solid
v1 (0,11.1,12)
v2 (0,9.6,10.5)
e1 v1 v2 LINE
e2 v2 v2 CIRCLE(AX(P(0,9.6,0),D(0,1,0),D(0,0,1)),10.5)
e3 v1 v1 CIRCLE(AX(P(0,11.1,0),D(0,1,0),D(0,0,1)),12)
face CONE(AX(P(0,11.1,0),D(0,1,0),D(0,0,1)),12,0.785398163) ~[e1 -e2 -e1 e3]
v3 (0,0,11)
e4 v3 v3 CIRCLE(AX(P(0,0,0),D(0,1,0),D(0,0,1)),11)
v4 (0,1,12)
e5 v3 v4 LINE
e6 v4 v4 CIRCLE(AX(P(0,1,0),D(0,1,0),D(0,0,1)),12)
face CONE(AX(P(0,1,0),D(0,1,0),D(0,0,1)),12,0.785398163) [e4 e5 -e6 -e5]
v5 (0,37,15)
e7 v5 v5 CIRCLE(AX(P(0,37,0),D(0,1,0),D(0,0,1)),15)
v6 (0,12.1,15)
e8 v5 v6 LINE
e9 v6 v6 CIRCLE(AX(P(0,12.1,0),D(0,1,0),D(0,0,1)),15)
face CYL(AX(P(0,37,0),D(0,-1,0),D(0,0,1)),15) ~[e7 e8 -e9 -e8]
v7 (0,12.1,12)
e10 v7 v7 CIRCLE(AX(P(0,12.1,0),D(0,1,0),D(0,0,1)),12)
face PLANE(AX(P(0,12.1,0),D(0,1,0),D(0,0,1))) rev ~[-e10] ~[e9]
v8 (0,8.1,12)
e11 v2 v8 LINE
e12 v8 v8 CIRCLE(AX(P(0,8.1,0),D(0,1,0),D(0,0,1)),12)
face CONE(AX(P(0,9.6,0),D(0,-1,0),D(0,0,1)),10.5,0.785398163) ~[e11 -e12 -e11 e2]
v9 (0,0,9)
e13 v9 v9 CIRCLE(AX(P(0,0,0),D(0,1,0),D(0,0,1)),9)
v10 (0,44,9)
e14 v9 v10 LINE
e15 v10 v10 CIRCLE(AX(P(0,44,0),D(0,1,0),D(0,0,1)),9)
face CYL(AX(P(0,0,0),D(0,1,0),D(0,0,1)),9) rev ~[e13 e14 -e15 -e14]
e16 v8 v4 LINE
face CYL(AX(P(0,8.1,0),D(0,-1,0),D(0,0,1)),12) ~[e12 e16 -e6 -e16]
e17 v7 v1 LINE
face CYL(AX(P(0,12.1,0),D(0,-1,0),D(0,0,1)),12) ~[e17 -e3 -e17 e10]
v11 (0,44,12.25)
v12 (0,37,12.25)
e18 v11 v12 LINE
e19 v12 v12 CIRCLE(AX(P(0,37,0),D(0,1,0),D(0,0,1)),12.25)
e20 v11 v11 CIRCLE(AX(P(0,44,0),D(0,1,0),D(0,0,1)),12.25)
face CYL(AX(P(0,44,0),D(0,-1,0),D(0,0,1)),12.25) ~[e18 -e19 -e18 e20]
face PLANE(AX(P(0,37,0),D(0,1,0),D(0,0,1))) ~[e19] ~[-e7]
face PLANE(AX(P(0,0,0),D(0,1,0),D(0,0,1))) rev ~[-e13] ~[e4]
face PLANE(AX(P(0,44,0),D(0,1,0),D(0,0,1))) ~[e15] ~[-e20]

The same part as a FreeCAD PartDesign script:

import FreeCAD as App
import Part
import Sketcher
from FreeCAD import Vector
Q = App.Units.Quantity


def edges_at(feature, points):
    """Names of the edges that pass closest to the given points."""
    edges = feature.Shape.Edges
    near = lambda p: min(range(len(edges)), key=lambda i: edges[i].distToShape(Part.Vertex(*p))[0])
    return sorted({f"Edge{near(p) + 1}" for p in points})


def add_polygon(sketch, points):
    """Adds a closed chain of lines whose ends are joined by coincident constraints."""
    first, n = sketch.GeometryCount, len(points)
    for a, b in zip(points, points[1:] + points[:1]):
        sketch.addGeometry(Part.LineSegment(App.Vector(*a, 0), App.Vector(*b, 0)), False)
    for i in range(n):
        sketch.addConstraint(Sketcher.Constraint("Coincident", first + i, 2, first + (i + 1) % n, 1))

doc = App.newDocument("Part")
params = doc.addObject("Spreadsheet::Sheet", "Params")
for row, (alias, value) in enumerate([
    ("sketch1_width", "44 mm"),
    ("sketch1_width2", "7 mm"),
    ("sketch1_width3", "1 mm"),
    ("sketch1_height", "3 mm"),
    ("sketch1_width4", "24.9 mm"),
    ("revolution_angle", "360 deg"),
    ("chamfer_size", "1 mm"),
], start=1):
    params.set(f"A{row}", alias)
    params.set(f"B{row}", "=" + value)
    params.setAlias(f"B{row}", alias)

body = doc.addObject("PartDesign::Body", "Body")

# Sketch on YZ plane
sketch1 = body.newObject("Sketcher::SketchObject", "Sketch")
sketch1.AttachmentSupport = (doc.getObject("YZ_Plane"), [""])
sketch1.MapMode = "FlatFace"
add_polygon(sketch1, [(0, 12), (0, 9), (44, 9), (44, 12.2), (37, 12.2), (37, 15), (12.1, 15), (12.1, 12), (11.1, 12), (9.6, 10.5), (8.1, 12)])  # lines 0-10
sketch1.addConstraint(Sketcher.Constraint("Vertical", 0))
sketch1.addConstraint(Sketcher.Constraint("Horizontal", 1))
sketch1.addConstraint(Sketcher.Constraint("Vertical", 2))
sketch1.addConstraint(Sketcher.Constraint("Horizontal", 3))
sketch1.addConstraint(Sketcher.Constraint("Vertical", 4))
sketch1.addConstraint(Sketcher.Constraint("Horizontal", 5))
sketch1.addConstraint(Sketcher.Constraint("Vertical", 6))
sketch1.addConstraint(Sketcher.Constraint("Horizontal", 7))
sketch1.addConstraint(Sketcher.Constraint("Horizontal", 10))
sketch1.addConstraint(Sketcher.Constraint("PointOnObject", 0, 2, -2))
sketch1.addConstraint(Sketcher.Constraint("Perpendicular", 8, 9))
sketch1.addConstraint(Sketcher.Constraint("Horizontal", 7, 2, 9, 2))
sketch1.addConstraint(Sketcher.Constraint("Equal", 0, 6))
sketch1.addConstraint(Sketcher.Constraint("Equal", 8, 9))
sketch1.addConstraint(Sketcher.Constraint("DistanceX", 1, 1, 1, 2, Q("44 mm")))
sketch1.addConstraint(Sketcher.Constraint("DistanceX", 3, 2, 3, 1, Q("7 mm")))
sketch1.addConstraint(Sketcher.Constraint("DistanceX", 7, 2, 7, 1, Q("1 mm")))
sketch1.addConstraint(Sketcher.Constraint("DistanceY", 0, 2, 0, 1, Q("3 mm")))
sketch1.addConstraint(Sketcher.Constraint("DistanceX", 5, 2, 5, 1, Q("24.9 mm")))
sketch1.addConstraint(Sketcher.Constraint("DistanceX", 10, 2, 10, 1, Q("8.1 mm")))
sketch1.addConstraint(Sketcher.Constraint("DistanceY", -1, 1, 0, 2, Q("9 mm")))
sketch1.addConstraint(Sketcher.Constraint("DistanceY", 2, 1, 2, 2, Q("3.25 mm")))
sketch1.setExpression("Constraints[25]", "Params.sketch1_width")
sketch1.setExpression("Constraints[26]", "Params.sketch1_width2")
sketch1.setExpression("Constraints[27]", "Params.sketch1_width3")
sketch1.setExpression("Constraints[28]", "Params.sketch1_height")
sketch1.setExpression("Constraints[29]", "Params.sketch1_width4")
revolution = body.newObject("PartDesign::Revolution", "Revolution")
revolution.Profile = sketch1
revolution.ReferenceAxis = (sketch1, ["H_Axis"])
revolution.setExpression("Angle", "Params.revolution_angle")
doc.recompute()

chamfer = body.newObject("PartDesign::Chamfer", "Chamfer")
chamfer.Base = (revolution, edges_at(revolution, [(0, 0, -12)]))
chamfer.setExpression("Size", "Params.chamfer_size")

doc.recompute()
